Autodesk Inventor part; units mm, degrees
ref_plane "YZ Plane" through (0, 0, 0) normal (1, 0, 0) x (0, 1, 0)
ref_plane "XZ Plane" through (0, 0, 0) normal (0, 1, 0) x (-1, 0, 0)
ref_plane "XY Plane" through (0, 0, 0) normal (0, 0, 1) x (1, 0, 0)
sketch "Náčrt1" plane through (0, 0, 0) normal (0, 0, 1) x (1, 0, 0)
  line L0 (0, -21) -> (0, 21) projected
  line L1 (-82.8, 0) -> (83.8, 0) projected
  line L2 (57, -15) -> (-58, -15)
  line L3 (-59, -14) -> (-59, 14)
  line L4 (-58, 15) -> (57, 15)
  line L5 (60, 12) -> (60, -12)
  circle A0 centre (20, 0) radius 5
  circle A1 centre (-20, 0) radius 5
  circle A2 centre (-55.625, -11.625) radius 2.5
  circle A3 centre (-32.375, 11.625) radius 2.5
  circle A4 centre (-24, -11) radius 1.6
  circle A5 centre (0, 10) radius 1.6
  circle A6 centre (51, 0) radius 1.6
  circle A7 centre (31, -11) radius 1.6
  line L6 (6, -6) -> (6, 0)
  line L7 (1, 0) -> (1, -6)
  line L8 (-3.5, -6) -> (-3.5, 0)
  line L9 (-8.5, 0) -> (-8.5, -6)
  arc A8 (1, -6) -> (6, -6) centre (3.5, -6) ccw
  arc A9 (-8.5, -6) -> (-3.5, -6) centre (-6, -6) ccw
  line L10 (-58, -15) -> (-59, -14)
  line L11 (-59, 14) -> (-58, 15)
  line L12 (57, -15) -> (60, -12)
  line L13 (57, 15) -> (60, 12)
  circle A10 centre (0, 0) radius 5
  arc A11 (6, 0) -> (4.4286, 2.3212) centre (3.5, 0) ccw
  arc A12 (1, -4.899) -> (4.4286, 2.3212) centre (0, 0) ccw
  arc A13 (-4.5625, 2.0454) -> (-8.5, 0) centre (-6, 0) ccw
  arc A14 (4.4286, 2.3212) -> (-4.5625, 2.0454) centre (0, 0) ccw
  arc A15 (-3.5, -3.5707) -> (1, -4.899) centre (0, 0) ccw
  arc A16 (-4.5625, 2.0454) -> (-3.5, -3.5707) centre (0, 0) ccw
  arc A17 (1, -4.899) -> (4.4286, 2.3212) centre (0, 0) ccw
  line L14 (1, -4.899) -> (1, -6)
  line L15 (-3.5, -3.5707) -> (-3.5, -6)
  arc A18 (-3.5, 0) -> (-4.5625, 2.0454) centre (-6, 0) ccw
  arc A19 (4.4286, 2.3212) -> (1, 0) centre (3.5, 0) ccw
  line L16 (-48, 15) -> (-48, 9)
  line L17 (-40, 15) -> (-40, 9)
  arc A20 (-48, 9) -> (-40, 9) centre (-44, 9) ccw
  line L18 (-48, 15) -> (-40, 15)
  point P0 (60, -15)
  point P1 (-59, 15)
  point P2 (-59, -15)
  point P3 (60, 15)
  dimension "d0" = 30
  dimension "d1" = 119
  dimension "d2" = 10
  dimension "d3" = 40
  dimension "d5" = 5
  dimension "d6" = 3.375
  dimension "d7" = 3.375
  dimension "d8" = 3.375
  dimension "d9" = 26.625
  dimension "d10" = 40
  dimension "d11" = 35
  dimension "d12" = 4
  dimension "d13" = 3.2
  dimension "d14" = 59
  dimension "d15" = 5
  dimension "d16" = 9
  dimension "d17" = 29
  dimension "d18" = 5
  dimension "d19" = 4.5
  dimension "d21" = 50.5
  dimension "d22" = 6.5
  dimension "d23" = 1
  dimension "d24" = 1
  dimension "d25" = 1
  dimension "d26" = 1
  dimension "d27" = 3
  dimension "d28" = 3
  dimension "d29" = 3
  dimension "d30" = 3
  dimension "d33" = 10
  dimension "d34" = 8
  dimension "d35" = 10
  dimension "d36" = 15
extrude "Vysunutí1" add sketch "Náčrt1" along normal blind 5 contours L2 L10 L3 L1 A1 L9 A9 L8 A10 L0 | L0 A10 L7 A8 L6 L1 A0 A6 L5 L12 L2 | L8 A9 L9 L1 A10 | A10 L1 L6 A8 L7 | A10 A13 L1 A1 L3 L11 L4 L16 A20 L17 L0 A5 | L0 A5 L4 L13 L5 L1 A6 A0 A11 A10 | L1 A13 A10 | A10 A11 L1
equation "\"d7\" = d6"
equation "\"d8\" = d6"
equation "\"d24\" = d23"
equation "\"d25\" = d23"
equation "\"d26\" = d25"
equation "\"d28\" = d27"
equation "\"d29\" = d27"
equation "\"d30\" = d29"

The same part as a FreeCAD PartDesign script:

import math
import FreeCAD as App
import Part
import Sketcher
from FreeCAD import Vector
Q = App.Units.Quantity

doc = App.newDocument("Part")
body = doc.addObject("PartDesign::Body", "Body")

sketch1 = body.newObject("Sketcher::SketchObject", "Sketch")
sketch1.AttachmentSupport = (doc.getObject("XY_Plane"), [""])
sketch1.MapMode = "FlatFace"
sketch1.addGeometry([
    Part.LineSegment(Vector(-58, -15, 0), Vector(57, -15, 0)),
    Part.LineSegment(Vector(57, -15, 0), Vector(60, -12, 0)),
    Part.LineSegment(Vector(60, -12, 0), Vector(60, 12, 0)),
    Part.LineSegment(Vector(60, 12, 0), Vector(57, 15, 0)),
    Part.LineSegment(Vector(57, 15, 0), Vector(-40, 15, 0)),
    Part.LineSegment(Vector(-40, 15, 0), Vector(-40, 9, 0)),
    Part.ArcOfCircle(Part.Circle(Vector(-44, 9, 0), Vector(0, 0, 1), 4), math.radians(180), math.radians(360)),
    Part.LineSegment(Vector(-48, 9, 0), Vector(-48, 15, 0)),
    Part.LineSegment(Vector(-48, 15, 0), Vector(-58, 15, 0)),
    Part.LineSegment(Vector(-58, 15, 0), Vector(-59, 14, 0)),
    Part.LineSegment(Vector(-59, 14, 0), Vector(-59, -14, 0)),
    Part.LineSegment(Vector(-59, -14, 0), Vector(-58, -15, 0)),
    Part.Circle(Vector(-20, 0, 0), Vector(0, 0, 1), 5),
    Part.Circle(Vector(0, 0, 0), Vector(0, 0, 1), 5),
    Part.Circle(Vector(-55.625, -11.625, 0), Vector(0, 0, 1), 2.5),
    Part.Circle(Vector(-24, -11, 0), Vector(0, 0, 1), 1.6),
    Part.Circle(Vector(-32.375, 11.625, 0), Vector(0, 0, 1), 2.5),
    Part.Circle(Vector(0, 10, 0), Vector(0, 0, 1), 1.6),
    Part.Circle(Vector(31, -11, 0), Vector(0, 0, 1), 1.6),
    Part.Circle(Vector(20, 0, 0), Vector(0, 0, 1), 5),
    Part.Circle(Vector(51, 0, 0), Vector(0, 0, 1), 1.6),
], False)
sketch1.addConstraint([
    Sketcher.Constraint("Coincident", 0, 2, 1, 1),
    Sketcher.Constraint("Coincident", 1, 2, 2, 1),
    Sketcher.Constraint("Coincident", 2, 2, 3, 1),
    Sketcher.Constraint("Coincident", 3, 2, 4, 1),
    Sketcher.Constraint("Coincident", 4, 2, 5, 1),
    Sketcher.Constraint("Tangent", 5, 2, 6, 2),
    Sketcher.Constraint("Tangent", 6, 1, 7, 1),
    Sketcher.Constraint("Coincident", 7, 2, 8, 1),
    Sketcher.Constraint("Coincident", 8, 2, 9, 1),
    Sketcher.Constraint("Coincident", 9, 2, 10, 1),
    Sketcher.Constraint("Coincident", 10, 2, 11, 1),
    Sketcher.Constraint("Coincident", 11, 2, 0, 1),
    Sketcher.Constraint("Horizontal", 0),
    Sketcher.Constraint("Vertical", 2),
    Sketcher.Constraint("Horizontal", 4),
    Sketcher.Constraint("Vertical", 5),
    Sketcher.Constraint("Vertical", 7),
    Sketcher.Constraint("Horizontal", 8),
    Sketcher.Constraint("Vertical", 10),
    Sketcher.Constraint("Coincident", 13, 3, -1, 1),
    Sketcher.Constraint("Equal", 12, 13),
    Sketcher.Constraint("Equal", 14, 16),
    Sketcher.Constraint("Equal", 15, 17),
    Sketcher.Constraint("Equal", 17, 18),
    Sketcher.Constraint("Equal", 13, 19),
    Sketcher.Constraint("Equal", 18, 20),
    Sketcher.Constraint("Symmetric", 12, 3, 19, 3, -1, 1),
    Sketcher.Constraint("Symmetric", 0, 2, 3, 2, -1),
    Sketcher.Constraint("Symmetric", 8, 2, 11, 2, -1),
    Sketcher.Constraint("PointOnObject", 12, 3, -1),
    Sketcher.Constraint("PointOnObject", 17, 3, -2),
    Sketcher.Constraint("PointOnObject", 20, 3, -1),
    Sketcher.Constraint("Perpendicular", 1, 3),
    Sketcher.Constraint("Perpendicular", 3, 9),
    Sketcher.Constraint("Perpendicular", 9, 11),
    Sketcher.Constraint("Horizontal", 15, 3, 18, 3),
    Sketcher.Constraint("Equal", 1, 3),
    Sketcher.Constraint("Diameter", 12, Q("10 mm")),
    Sketcher.Constraint("Diameter", 14, Q("5 mm")),
    Sketcher.Constraint("Radius", 6, Q("4 mm")),
    Sketcher.Constraint("Diameter", 15, Q("3.2 mm")),
    Sketcher.Constraint("DistanceX", 8, 2, 8, 1, Q("10 mm")),
    Sketcher.Constraint("DistanceY", -1, 1, 6, 3, Q("9 mm")),
    Sketcher.Constraint("DistanceY", -1, 1, 17, 3, Q("10 mm")),
    Sketcher.Constraint("DistanceY", 0, 2, -1, 1, Q("15 mm")),
    Sketcher.Constraint("DistanceX", 4, 2, -1, 1, Q("40 mm")),
    Sketcher.Constraint("DistanceX", 9, 2, -1, 1, Q("59 mm")),
    Sketcher.Constraint("DistanceX", 15, 3, 12, 3, Q("4 mm")),
    Sketcher.Constraint("DistanceX", 12, 3, 19, 3, Q("40 mm")),
    Sketcher.Constraint("DistanceY", 0, 2, 18, 3, Q("4 mm")),
    Sketcher.Constraint("DistanceX", 0, 2, 1, 2, Q("3 mm")),
    Sketcher.Constraint("DistanceX", 20, 3, 1, 2, Q("9 mm")),
    Sketcher.Constraint("DistanceX", 18, 3, 1, 2, Q("29 mm")),
    Sketcher.Constraint("DistanceX", 19, 3, 1, 2, Q("40 mm")),
    Sketcher.Constraint("DistanceY", 16, 3, 4, 2, Q("3.375 mm")),
    Sketcher.Constraint("DistanceY", 14, 3, 4, 2, Q("26.625 mm")),
    Sketcher.Constraint("DistanceX", 10, 2, 14, 3, Q("3.375 mm")),
    Sketcher.Constraint("DistanceX", 14, 3, 16, 3, Q("23.25 mm")),
])
pad1 = body.newObject("PartDesign::Pad", "Pad")
pad1.Profile = sketch1
pad1.Length = 5

doc.recompute()
